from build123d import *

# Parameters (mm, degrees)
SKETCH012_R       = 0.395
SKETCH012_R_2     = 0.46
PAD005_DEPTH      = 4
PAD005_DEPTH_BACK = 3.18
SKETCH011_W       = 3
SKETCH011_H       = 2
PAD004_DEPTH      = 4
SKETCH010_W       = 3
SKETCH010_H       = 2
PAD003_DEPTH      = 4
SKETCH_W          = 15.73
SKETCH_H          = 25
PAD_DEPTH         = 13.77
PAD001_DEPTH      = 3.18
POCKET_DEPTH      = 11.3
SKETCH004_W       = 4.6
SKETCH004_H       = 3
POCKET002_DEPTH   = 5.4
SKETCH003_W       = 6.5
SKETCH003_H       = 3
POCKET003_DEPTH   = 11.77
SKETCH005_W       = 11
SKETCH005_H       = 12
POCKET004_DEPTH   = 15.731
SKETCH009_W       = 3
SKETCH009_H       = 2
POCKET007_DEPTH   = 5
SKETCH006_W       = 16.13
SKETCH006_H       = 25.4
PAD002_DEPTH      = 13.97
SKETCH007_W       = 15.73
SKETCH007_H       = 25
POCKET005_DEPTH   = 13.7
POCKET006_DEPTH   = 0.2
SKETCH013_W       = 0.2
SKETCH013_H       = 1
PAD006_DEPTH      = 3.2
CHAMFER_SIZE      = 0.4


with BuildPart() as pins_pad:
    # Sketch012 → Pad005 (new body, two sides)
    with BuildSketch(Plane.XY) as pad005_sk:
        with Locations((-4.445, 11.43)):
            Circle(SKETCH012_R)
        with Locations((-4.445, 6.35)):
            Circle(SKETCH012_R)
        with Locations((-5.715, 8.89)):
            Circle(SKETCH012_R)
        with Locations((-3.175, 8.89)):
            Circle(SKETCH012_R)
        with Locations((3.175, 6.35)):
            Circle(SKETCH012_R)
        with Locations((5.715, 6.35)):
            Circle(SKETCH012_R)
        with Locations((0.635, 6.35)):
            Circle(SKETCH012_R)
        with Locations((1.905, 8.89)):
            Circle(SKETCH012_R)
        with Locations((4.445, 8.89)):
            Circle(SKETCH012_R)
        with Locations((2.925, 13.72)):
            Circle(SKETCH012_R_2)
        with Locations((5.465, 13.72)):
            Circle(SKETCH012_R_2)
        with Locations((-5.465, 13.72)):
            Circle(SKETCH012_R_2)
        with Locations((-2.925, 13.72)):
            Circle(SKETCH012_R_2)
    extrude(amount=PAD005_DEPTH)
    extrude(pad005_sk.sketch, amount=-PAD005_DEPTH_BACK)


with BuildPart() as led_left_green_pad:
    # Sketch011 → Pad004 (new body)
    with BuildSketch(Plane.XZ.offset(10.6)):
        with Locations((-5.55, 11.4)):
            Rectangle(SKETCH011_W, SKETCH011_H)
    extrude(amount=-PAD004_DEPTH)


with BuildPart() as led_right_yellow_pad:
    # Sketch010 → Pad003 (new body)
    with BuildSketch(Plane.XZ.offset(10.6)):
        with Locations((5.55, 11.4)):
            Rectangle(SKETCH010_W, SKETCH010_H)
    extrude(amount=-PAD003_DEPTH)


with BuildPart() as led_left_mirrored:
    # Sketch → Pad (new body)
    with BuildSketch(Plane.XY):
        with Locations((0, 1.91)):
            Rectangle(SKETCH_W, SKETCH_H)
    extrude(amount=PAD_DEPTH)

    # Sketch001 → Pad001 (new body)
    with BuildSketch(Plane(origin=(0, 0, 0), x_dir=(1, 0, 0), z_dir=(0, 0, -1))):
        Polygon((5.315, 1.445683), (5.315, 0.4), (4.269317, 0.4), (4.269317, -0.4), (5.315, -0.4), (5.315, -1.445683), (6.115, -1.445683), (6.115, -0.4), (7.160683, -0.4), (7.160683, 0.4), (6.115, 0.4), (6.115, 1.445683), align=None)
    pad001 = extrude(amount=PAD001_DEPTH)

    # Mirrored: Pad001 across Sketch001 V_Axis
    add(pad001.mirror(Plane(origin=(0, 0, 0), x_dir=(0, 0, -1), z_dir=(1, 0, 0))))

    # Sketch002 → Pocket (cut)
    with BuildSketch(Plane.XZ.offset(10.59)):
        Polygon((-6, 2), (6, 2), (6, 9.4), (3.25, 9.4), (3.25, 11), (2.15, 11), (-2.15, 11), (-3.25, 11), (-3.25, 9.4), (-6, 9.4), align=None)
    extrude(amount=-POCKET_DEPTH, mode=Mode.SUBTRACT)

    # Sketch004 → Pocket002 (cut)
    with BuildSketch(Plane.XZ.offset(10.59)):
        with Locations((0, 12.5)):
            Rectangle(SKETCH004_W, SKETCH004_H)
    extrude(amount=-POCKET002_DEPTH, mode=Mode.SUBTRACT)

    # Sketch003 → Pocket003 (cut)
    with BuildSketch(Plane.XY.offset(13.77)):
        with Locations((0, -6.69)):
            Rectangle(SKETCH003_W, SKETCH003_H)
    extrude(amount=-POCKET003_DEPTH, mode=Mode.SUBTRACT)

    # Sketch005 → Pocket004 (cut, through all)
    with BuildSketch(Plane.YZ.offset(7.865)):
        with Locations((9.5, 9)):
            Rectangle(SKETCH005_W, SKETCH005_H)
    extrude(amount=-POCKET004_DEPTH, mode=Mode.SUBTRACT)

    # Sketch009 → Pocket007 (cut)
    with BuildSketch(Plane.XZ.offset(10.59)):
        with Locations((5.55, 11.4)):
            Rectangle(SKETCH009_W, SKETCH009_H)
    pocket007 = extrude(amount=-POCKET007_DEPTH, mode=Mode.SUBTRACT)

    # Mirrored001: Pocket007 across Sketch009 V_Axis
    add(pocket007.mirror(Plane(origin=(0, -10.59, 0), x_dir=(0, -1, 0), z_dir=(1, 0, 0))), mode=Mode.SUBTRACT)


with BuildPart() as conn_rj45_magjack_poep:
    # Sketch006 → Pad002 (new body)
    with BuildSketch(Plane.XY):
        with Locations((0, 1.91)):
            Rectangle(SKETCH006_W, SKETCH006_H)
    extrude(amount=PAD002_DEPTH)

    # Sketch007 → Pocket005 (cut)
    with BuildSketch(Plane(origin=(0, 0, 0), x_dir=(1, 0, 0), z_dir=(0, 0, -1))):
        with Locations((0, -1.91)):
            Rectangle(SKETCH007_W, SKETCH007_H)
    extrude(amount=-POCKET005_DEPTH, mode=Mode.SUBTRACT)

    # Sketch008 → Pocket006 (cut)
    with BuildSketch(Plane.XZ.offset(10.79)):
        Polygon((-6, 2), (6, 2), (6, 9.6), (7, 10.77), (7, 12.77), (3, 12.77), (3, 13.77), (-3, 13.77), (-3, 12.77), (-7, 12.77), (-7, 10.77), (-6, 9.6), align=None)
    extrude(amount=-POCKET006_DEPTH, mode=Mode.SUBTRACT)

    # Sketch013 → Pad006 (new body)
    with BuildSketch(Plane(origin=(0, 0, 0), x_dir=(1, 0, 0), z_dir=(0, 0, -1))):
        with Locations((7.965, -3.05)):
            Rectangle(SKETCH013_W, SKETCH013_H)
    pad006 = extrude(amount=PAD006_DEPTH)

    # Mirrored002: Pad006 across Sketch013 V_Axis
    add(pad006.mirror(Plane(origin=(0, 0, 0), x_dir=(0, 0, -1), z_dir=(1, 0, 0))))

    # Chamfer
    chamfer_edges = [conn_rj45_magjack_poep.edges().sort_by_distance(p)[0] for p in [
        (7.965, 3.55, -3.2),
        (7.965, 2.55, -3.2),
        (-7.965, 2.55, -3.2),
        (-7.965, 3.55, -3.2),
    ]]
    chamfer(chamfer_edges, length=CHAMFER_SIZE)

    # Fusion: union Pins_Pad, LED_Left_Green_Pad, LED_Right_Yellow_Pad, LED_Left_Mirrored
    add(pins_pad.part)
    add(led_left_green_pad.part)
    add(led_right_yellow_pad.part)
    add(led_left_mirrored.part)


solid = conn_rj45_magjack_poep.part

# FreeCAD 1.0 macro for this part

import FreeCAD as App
import Part
import Sketcher
Q = App.Units.Quantity


def edges_at(feature, points):
    """Names of the edges that pass closest to the given points."""
    edges = feature.Shape.Edges
    near = lambda p: min(range(len(edges)), key=lambda i: edges[i].distToShape(Part.Vertex(*p))[0])
    return sorted({f"Edge{near(p) + 1}" for p in points})


def add_polygon(sketch, points):
    """Adds a closed chain of lines whose ends are joined by coincident constraints."""
    first, n = sketch.GeometryCount, len(points)
    for a, b in zip(points, points[1:] + points[:1]):
        sketch.addGeometry(Part.LineSegment(App.Vector(*a, 0), App.Vector(*b, 0)), False)
    for i in range(n):
        sketch.addConstraint(Sketcher.Constraint("Coincident", first + i, 2, first + (i + 1) % n, 1))

doc = App.newDocument("Part")
body = doc.addObject("PartDesign::Body", "Body")
body.AllowCompound = True

# Sketch on XY plane
sketch1 = body.newObject("Sketcher::SketchObject", "Sketch")
sketch1.AttachmentSupport = (doc.getObject("XY_Plane"), [""])
sketch1.MapMode = "FlatFace"
sketch1.addGeometry([
    Part.Circle(App.Vector(-4.45, 11.43, 0), App.Vector(0, 0, 1), 0.4),  # 0
    Part.Circle(App.Vector(-4.45, 6.35, 0), App.Vector(0, 0, 1), 0.4),  # 1
    Part.Circle(App.Vector(-5.71, 8.89, 0), App.Vector(0, 0, 1), 0.4),  # 2
    Part.Circle(App.Vector(-3.17, 8.89, 0), App.Vector(0, 0, 1), 0.4),  # 3
    Part.Circle(App.Vector(3.17, 6.35, 0), App.Vector(0, 0, 1), 0.4),  # 4
    Part.Circle(App.Vector(5.71, 6.35, 0), App.Vector(0, 0, 1), 0.4),  # 5
    Part.Circle(App.Vector(0.64, 6.35, 0), App.Vector(0, 0, 1), 0.4),  # 6
    Part.Circle(App.Vector(1.91, 8.89, 0), App.Vector(0, 0, 1), 0.4),  # 7
    Part.Circle(App.Vector(4.45, 8.89, 0), App.Vector(0, 0, 1), 0.4),  # 8
    Part.Circle(App.Vector(2.92, 13.72, 0), App.Vector(0, 0, 1), 0.46),  # 9
    Part.Circle(App.Vector(5.46, 13.72, 0), App.Vector(0, 0, 1), 0.46),  # 10
    Part.Circle(App.Vector(-5.46, 13.72, 0), App.Vector(0, 0, 1), 0.46),  # 11
    Part.Circle(App.Vector(-2.92, 13.72, 0), App.Vector(0, 0, 1), 0.46),  # 12
], False)
sketch1.addConstraint([
    Sketcher.Constraint("Equal", 0, 1),
    Sketcher.Constraint("Equal", 1, 2),
    Sketcher.Constraint("Equal", 2, 3),
    Sketcher.Constraint("Equal", 3, 4),
    Sketcher.Constraint("Equal", 4, 5),
    Sketcher.Constraint("Equal", 5, 6),
    Sketcher.Constraint("Equal", 6, 7),
    Sketcher.Constraint("Equal", 7, 8),
    Sketcher.Constraint("Equal", 9, 10),
    Sketcher.Constraint("Equal", 10, 11),
    Sketcher.Constraint("Equal", 11, 12),
    Sketcher.Constraint("Symmetric", 10, 3, 11, 3, -2),
    Sketcher.Constraint("Symmetric", 9, 3, 12, 3, -2),
    Sketcher.Constraint("Horizontal", 2, 3, 3, 3),
    Sketcher.Constraint("Horizontal", 1, 3, 4, 3),
    Sketcher.Constraint("Horizontal", 4, 3, 5, 3),
    Sketcher.Constraint("Horizontal", 5, 3, 6, 3),
    Sketcher.Constraint("Horizontal", 3, 3, 7, 3),
    Sketcher.Constraint("Horizontal", 7, 3, 8, 3),
    Sketcher.Constraint("Horizontal", 9, 3, 10, 3),
    Sketcher.Constraint("Vertical", 0, 3, 1, 3),
    Sketcher.Constraint("Diameter", 0, Q("0.79 mm")),
    Sketcher.Constraint("Diameter", 9, Q("0.92 mm")),
    Sketcher.Constraint("DistanceY", -1, 1, 0, 3, Q("11.43 mm")),
    Sketcher.Constraint("DistanceY", -1, 1, 1, 3, Q("6.35 mm")),
    Sketcher.Constraint("DistanceY", -1, 1, 2, 3, Q("8.89 mm")),
    Sketcher.Constraint("DistanceY", -1, 1, 9, 3, Q("13.72 mm")),
    Sketcher.Constraint("DistanceX", 2, 3, 0, 3, Q("1.27 mm")),
    Sketcher.Constraint("DistanceX", 2, 3, 3, 3, Q("2.54 mm")),
    Sketcher.Constraint("DistanceX", 3, 3, 4, 3, Q("6.35 mm")),
    Sketcher.Constraint("DistanceX", 4, 3, 5, 3, Q("2.54 mm")),
    Sketcher.Constraint("DistanceX", 6, 3, 4, 3, Q("2.54 mm")),
    Sketcher.Constraint("DistanceX", 7, 3, 4, 3, Q("1.27 mm")),
    Sketcher.Constraint("DistanceX", 7, 3, 8, 3, Q("2.54 mm")),
    Sketcher.Constraint("DistanceX", 7, 3, 9, 3, Q("1.02 mm")),
    Sketcher.Constraint("DistanceX", 9, 3, 10, 3, Q("2.54 mm")),
    Sketcher.Constraint("DistanceX", 11, 3, 0, 3, Q("1.02 mm")),
])
pad1 = body.newObject("PartDesign::Pad", "Pad")
pad1.Profile = sketch1
pad1.Type = "TwoLengths"
pad1.Length = 4
pad1.Length2 = 3.18
body2 = doc.addObject("PartDesign::Body", "Body001")

# Sketch on XZ plane
sketch2 = body2.newObject("Sketcher::SketchObject", "Sketch001")
sketch2.AttachmentSupport = (doc.getObject("XZ_Plane001"), [""])
sketch2.MapMode = "FlatFace"
sketch2.AttachmentOffset = App.Placement(App.Vector(0, 0, 10.6), App.Rotation())
add_polygon(sketch2, [(-7, 12.4), (-7, 10.4), (-4, 10.4), (-4, 12.4)])  # lines 0-3
sketch2.addConstraint([
    Sketcher.Constraint("Vertical", 0),
    Sketcher.Constraint("Horizontal", 1),
    Sketcher.Constraint("Vertical", 2),
    Sketcher.Constraint("Horizontal", 3),
    Sketcher.Constraint("DistanceX", 1, 1, 1, 2, Q("3 mm")),
    Sketcher.Constraint("DistanceY", 0, 2, 0, 1, Q("2 mm")),
    Sketcher.Constraint("DistanceY", -1, 1, 0, 2, Q("10.4 mm")),
    Sketcher.Constraint("DistanceX", 0, 2, -1, 1, Q("7.05 mm")),
])
pad2 = body2.newObject("PartDesign::Pad", "Pad001")
pad2.Profile = sketch2
pad2.Length = 4
pad2.Reversed = True
body3 = doc.addObject("PartDesign::Body", "Body002")

# Sketch on XZ plane
sketch3 = body3.newObject("Sketcher::SketchObject", "Sketch002")
sketch3.AttachmentSupport = (doc.getObject("XZ_Plane002"), [""])
sketch3.MapMode = "FlatFace"
sketch3.AttachmentOffset = App.Placement(App.Vector(0, 0, 10.6), App.Rotation())
add_polygon(sketch3, [(4, 12.4), (4, 10.4), (7, 10.4), (7, 12.4)])  # lines 0-3
sketch3.addConstraint([
    Sketcher.Constraint("Vertical", 0),
    Sketcher.Constraint("Horizontal", 1),
    Sketcher.Constraint("Vertical", 2),
    Sketcher.Constraint("Horizontal", 3),
    Sketcher.Constraint("DistanceX", 1, 1, 1, 2, Q("3 mm")),
    Sketcher.Constraint("DistanceY", 0, 2, 0, 1, Q("2 mm")),
    Sketcher.Constraint("DistanceY", -1, 1, 0, 2, Q("10.4 mm")),
    Sketcher.Constraint("DistanceX", -1, 1, 0, 2, Q("4.05 mm")),
])
pad3 = body3.newObject("PartDesign::Pad", "Pad002")
pad3.Profile = sketch3
pad3.Length = 4
pad3.Reversed = True
body4 = doc.addObject("PartDesign::Body", "Body003")

# Sketch on XY plane
sketch4 = body4.newObject("Sketcher::SketchObject", "Sketch003")
sketch4.AttachmentSupport = (doc.getObject("XY_Plane003"), [""])
sketch4.MapMode = "FlatFace"
add_polygon(sketch4, [(-8, 14), (-8, -11), (8, -11), (8, 14)])  # lines 0-3
sketch4.addConstraint([
    Sketcher.Constraint("Vertical", 0),
    Sketcher.Constraint("Horizontal", 1),
    Sketcher.Constraint("Vertical", 2),
    Sketcher.Constraint("Horizontal", 3),
    Sketcher.Constraint("DistanceY", 0, 2, 0, 1, Q("25 mm")),
    Sketcher.Constraint("DistanceX", 1, 1, 1, 2, Q("15.73 mm")),
    Sketcher.Constraint("DistanceY", 0, 2, -1, 1, Q("10.59 mm")),
    Sketcher.Constraint("DistanceX", 0, 2, -1, 1, Q("7.865 mm")),
])
pad4 = body4.newObject("PartDesign::Pad", "Pad003")
pad4.Profile = sketch4
pad4.Length = 13.77

# Sketch on XY plane
sketch5 = body4.newObject("Sketcher::SketchObject", "Sketch004")
sketch5.AttachmentSupport = (doc.getObject("XY_Plane003"), [""])
sketch5.MapMode = "FlatFace"
add_polygon(sketch5, [(5.3, -1.4), (5.3, -0.4), (4.3, -0.4), (4.3, 0.4), (5.3, 0.4), (5.3, 1.4), (6.1, 1.4), (6.1, 0.4), (7.2, 0.4), (7.2, -0.4), (6.1, -0.4), (6.1, -1.4)])  # lines 0-11
sketch5.addConstraint([
    Sketcher.Constraint("Vertical", 0),
    Sketcher.Constraint("Horizontal", 1),
    Sketcher.Constraint("Vertical", 2),
    Sketcher.Constraint("Horizontal", 3),
    Sketcher.Constraint("Vertical", 4),
    Sketcher.Constraint("Horizontal", 5),
    Sketcher.Constraint("Vertical", 6),
    Sketcher.Constraint("Horizontal", 7),
    Sketcher.Constraint("Vertical", 8),
    Sketcher.Constraint("Horizontal", 9),
    Sketcher.Constraint("Vertical", 10),
    Sketcher.Constraint("Horizontal", 11),
    Sketcher.Constraint("Symmetric", 0, 2, 3, 2, -1),
    Sketcher.Constraint("Symmetric", 6, 2, 9, 2, -1),
    Sketcher.Constraint("Horizontal", 3, 2, 6, 2),
    Sketcher.Constraint("Equal", 3, 7),
    Sketcher.Constraint("Equal", 9, 0),
    Sketcher.Constraint("Equal", 11, 2),
    Sketcher.Constraint("Equal", 0, 4),
    Sketcher.Constraint("DistanceX", 5, 1, 5, 2, Q("0.8 mm")),
    Sketcher.Constraint("DistanceX", -1, 1, 0, 2, Q("5.315 mm")),
    Sketcher.Constraint("DistanceX", 1, 2, 1, 1, Q("1.045683 mm")),
])
pad5 = body4.newObject("PartDesign::Pad", "Pad004")
pad5.Profile = sketch5
pad5.Length = 3.18
pad5.Reversed = True
doc.recompute()

mirrored = body4.newObject("PartDesign::Mirrored", "Mirrored")
mirrored.Originals = [pad5]
mirrored.MirrorPlane = (doc.getObject("YZ_Plane003"), [""])
body4.Tip = mirrored

# Sketch on XZ plane
sketch6 = body4.newObject("Sketcher::SketchObject", "Sketch005")
sketch6.AttachmentSupport = (doc.getObject("XZ_Plane003"), [""])
sketch6.MapMode = "FlatFace"
sketch6.AttachmentOffset = App.Placement(App.Vector(0, 0, 10.59), App.Rotation())
add_polygon(sketch6, [(-6, 2), (6, 2), (6, 9.4), (3.2, 9.4), (3.2, 11), (-3.2, 11), (-3.2, 9.4), (-6, 9.4)])  # lines 0-7
sketch6.addConstraint([
    Sketcher.Constraint("Horizontal", 0),
    Sketcher.Constraint("Vertical", 1),
    Sketcher.Constraint("Horizontal", 2),
    Sketcher.Constraint("Vertical", 3),
    Sketcher.Constraint("Horizontal", 4),
    Sketcher.Constraint("Vertical", 5),
    Sketcher.Constraint("Horizontal", 6),
    Sketcher.Constraint("Vertical", 7),
    Sketcher.Constraint("Symmetric", 2, 2, 5, 2, -2),
    Sketcher.Constraint("Equal", 2, 6),
    Sketcher.Constraint("DistanceX", 0, 1, 0, 2, Q("12 mm")),
    Sketcher.Constraint("DistanceX", 4, 2, 4, 1, Q("6.5 mm")),
    Sketcher.Constraint("DistanceY", 1, 1, 1, 2, Q("7.4 mm")),
    Sketcher.Constraint("DistanceY", 3, 1, 3, 2, Q("1.6 mm")),
    Sketcher.Constraint("DistanceY", -1, 1, 0, 2, Q("2 mm")),
])
pocket1 = body4.newObject("PartDesign::Pocket", "Pocket")
pocket1.Profile = sketch6
pocket1.Length = 11.3

# Sketch on XZ plane
sketch7 = body4.newObject("Sketcher::SketchObject", "Sketch006")
sketch7.AttachmentSupport = (doc.getObject("XZ_Plane003"), [""])
sketch7.MapMode = "FlatFace"
sketch7.AttachmentOffset = App.Placement(App.Vector(0, 0, 10.59), App.Rotation())
add_polygon(sketch7, [(-2.3, 14), (-2.3, 11), (2.3, 11), (2.3, 14)])  # lines 0-3
sketch7.addConstraint([
    Sketcher.Constraint("Vertical", 0),
    Sketcher.Constraint("Horizontal", 1),
    Sketcher.Constraint("Vertical", 2),
    Sketcher.Constraint("Horizontal", 3),
    Sketcher.Constraint("DistanceY", 0, 2, 0, 1, Q("3 mm")),
    Sketcher.Constraint("DistanceX", 1, 1, 1, 2, Q("4.6 mm")),
    Sketcher.Constraint("DistanceY", -1, 1, 0, 2, Q("11 mm")),
    Sketcher.Constraint("DistanceX", 0, 2, -1, 1, Q("2.3 mm")),
])
pocket2 = body4.newObject("PartDesign::Pocket", "Pocket001")
pocket2.Profile = sketch7
pocket2.Length = 5.4

# Sketch on XY plane
sketch8 = body4.newObject("Sketcher::SketchObject", "Sketch007")
sketch8.AttachmentSupport = (doc.getObject("XY_Plane003"), [""])
sketch8.MapMode = "FlatFace"
sketch8.AttachmentOffset = App.Placement(App.Vector(0, 0, 13.77), App.Rotation())
add_polygon(sketch8, [(-3.2, -5.2), (-3.2, -8.2), (3.2, -8.2), (3.2, -5.2)])  # lines 0-3
sketch8.addConstraint([
    Sketcher.Constraint("Vertical", 0),
    Sketcher.Constraint("Horizontal", 1),
    Sketcher.Constraint("Vertical", 2),
    Sketcher.Constraint("Horizontal", 3),
    Sketcher.Constraint("DistanceY", 0, 2, 0, 1, Q("3 mm")),
    Sketcher.Constraint("DistanceX", 1, 1, 1, 2, Q("6.5 mm")),
    Sketcher.Constraint("DistanceX", 0, 2, -1, 1, Q("3.25 mm")),
    Sketcher.Constraint("DistanceY", 0, 2, -1, 1, Q("8.19 mm")),
])
pocket3 = body4.newObject("PartDesign::Pocket", "Pocket002")
pocket3.Profile = sketch8
pocket3.Length = 11.77

# Sketch on YZ plane
sketch9 = body4.newObject("Sketcher::SketchObject", "Sketch008")
sketch9.AttachmentSupport = (doc.getObject("YZ_Plane003"), [""])
sketch9.MapMode = "FlatFace"
sketch9.AttachmentOffset = App.Placement(App.Vector(0, 0, 7.865), App.Rotation())
add_polygon(sketch9, [(4, 15), (4, 3), (15, 3), (15, 15)])  # lines 0-3
sketch9.addConstraint([
    Sketcher.Constraint("Vertical", 0),
    Sketcher.Constraint("Horizontal", 1),
    Sketcher.Constraint("Vertical", 2),
    Sketcher.Constraint("Horizontal", 3),
    Sketcher.Constraint("DistanceX", 1, 1, 1, 2, Q("11 mm")),
    Sketcher.Constraint("DistanceY", 0, 2, 0, 1, Q("12 mm")),
    Sketcher.Constraint("DistanceX", -1, 1, 0, 2, Q("4 mm")),
    Sketcher.Constraint("DistanceY", -1, 1, 0, 2, Q("3 mm")),
])
pocket4 = body4.newObject("PartDesign::Pocket", "Pocket003")
pocket4.Profile = sketch9
pocket4.Type = "ThroughAll"

# Sketch on XZ plane
sketch10 = body4.newObject("Sketcher::SketchObject", "Sketch009")
sketch10.AttachmentSupport = (doc.getObject("XZ_Plane003"), [""])
sketch10.MapMode = "FlatFace"
sketch10.AttachmentOffset = App.Placement(App.Vector(0, 0, 10.59), App.Rotation())
add_polygon(sketch10, [(4, 12.4), (4, 10.4), (7, 10.4), (7, 12.4)])  # lines 0-3
sketch10.addConstraint([
    Sketcher.Constraint("Vertical", 0),
    Sketcher.Constraint("Horizontal", 1),
    Sketcher.Constraint("Vertical", 2),
    Sketcher.Constraint("Horizontal", 3),
    Sketcher.Constraint("DistanceX", 1, 1, 1, 2, Q("3 mm")),
    Sketcher.Constraint("DistanceY", 0, 2, 0, 1, Q("2 mm")),
    Sketcher.Constraint("DistanceY", -1, 1, 0, 2, Q("10.4 mm")),
    Sketcher.Constraint("DistanceX", -1, 1, 0, 2, Q("4.05 mm")),
])
pocket5 = body4.newObject("PartDesign::Pocket", "Pocket004")
pocket5.Profile = sketch10
pocket5.Length = 5
doc.recompute()

mirrored2 = body4.newObject("PartDesign::Mirrored", "Mirrored001")
mirrored2.Originals = [pocket5]
mirrored2.MirrorPlane = (doc.getObject("YZ_Plane003"), [""])
body4.Tip = mirrored2
body5 = doc.addObject("PartDesign::Body", "Body004")
body5.AllowCompound = True

# Sketch on XY plane
sketch11 = body5.newObject("Sketcher::SketchObject", "Sketch010")
sketch11.AttachmentSupport = (doc.getObject("XY_Plane004"), [""])
sketch11.MapMode = "FlatFace"
add_polygon(sketch11, [(-8, 15), (-8, -11), (8, -11), (8, 15)])  # lines 0-3
sketch11.addConstraint([
    Sketcher.Constraint("Vertical", 0),
    Sketcher.Constraint("Horizontal", 1),
    Sketcher.Constraint("Vertical", 2),
    Sketcher.Constraint("Horizontal", 3),
    Sketcher.Constraint("DistanceY", 0, 2, 0, 1, Q("25.4 mm")),
    Sketcher.Constraint("DistanceX", 1, 1, 1, 2, Q("16.13 mm")),
    Sketcher.Constraint("DistanceY", 0, 2, -1, 1, Q("10.79 mm")),
    Sketcher.Constraint("DistanceX", 0, 2, -1, 1, Q("8.065 mm")),
])
pad6 = body5.newObject("PartDesign::Pad", "Pad005")
pad6.Profile = sketch11
pad6.Length = 13.97

# Sketch on XY plane
sketch12 = body5.newObject("Sketcher::SketchObject", "Sketch011")
sketch12.AttachmentSupport = (doc.getObject("XY_Plane004"), [""])
sketch12.MapMode = "FlatFace"
add_polygon(sketch12, [(-8, -11), (-8, 14), (8, 14), (8, -11)])  # lines 0-3
sketch12.addConstraint([
    Sketcher.Constraint("Vertical", 0),
    Sketcher.Constraint("Horizontal", 1),
    Sketcher.Constraint("Vertical", 2),
    Sketcher.Constraint("Horizontal", 3),
    Sketcher.Constraint("DistanceY", 0, 1, 0, 2, Q("25 mm")),
    Sketcher.Constraint("DistanceX", 1, 1, 1, 2, Q("15.73 mm")),
    Sketcher.Constraint("DistanceY", -1, 1, 0, 2, Q("14.41 mm")),
    Sketcher.Constraint("DistanceX", 0, 2, -1, 1, Q("7.865 mm")),
])
pocket6 = body5.newObject("PartDesign::Pocket", "Pocket005")
pocket6.Profile = sketch12
pocket6.Length = 13.7
pocket6.Reversed = True

# Sketch on XZ plane
sketch13 = body5.newObject("Sketcher::SketchObject", "Sketch012")
sketch13.AttachmentSupport = (doc.getObject("XZ_Plane004"), [""])
sketch13.MapMode = "FlatFace"
sketch13.AttachmentOffset = App.Placement(App.Vector(0, 0, 10.79), App.Rotation())
add_polygon(sketch13, [(-6, 2), (6, 2), (6, 9.6), (7, 10.8), (7, 12.8), (3, 12.8), (3, 13.8), (-3, 13.8), (-3, 12.8), (-7, 12.8), (-7, 10.8), (-6, 9.6)])  # lines 0-11
sketch13.addConstraint([
    Sketcher.Constraint("Horizontal", 0),
    Sketcher.Constraint("Vertical", 1),
    Sketcher.Constraint("Vertical", 3),
    Sketcher.Constraint("Horizontal", 4),
    Sketcher.Constraint("Vertical", 5),
    Sketcher.Constraint("Horizontal", 6),
    Sketcher.Constraint("Vertical", 7),
    Sketcher.Constraint("Horizontal", 8),
    Sketcher.Constraint("Vertical", 9),
    Sketcher.Constraint("Vertical", 11),
    Sketcher.Constraint("Symmetric", 4, 2, 7, 2, -2),
    Sketcher.Constraint("Symmetric", 2, 2, 9, 2, -2),
    Sketcher.Constraint("Symmetric", 1, 2, 10, 2, -2),
    Sketcher.Constraint("DistanceX", 0, 1, 0, 2, Q("12 mm")),
    Sketcher.Constraint("DistanceX", 4, 2, 4, 1, Q("4 mm")),
    Sketcher.Constraint("DistanceX", 6, 2, 6, 1, Q("6 mm")),
    Sketcher.Constraint("DistanceY", 3, 1, 3, 2, Q("2 mm")),
    Sketcher.Constraint("DistanceY", 5, 1, 5, 2, Q("1 mm")),
    Sketcher.Constraint("DistanceY", 1, 1, 1, 2, Q("7.6 mm")),
    Sketcher.Constraint("DistanceY", -1, 1, 0, 2, Q("2 mm")),
    Sketcher.Constraint("DistanceY", -1, 1, 2, 2, Q("10.77 mm")),
])
pocket7 = body5.newObject("PartDesign::Pocket", "Pocket006")
pocket7.Profile = sketch13
pocket7.Length = 0.2

# Sketch on XY plane
sketch14 = body5.newObject("Sketcher::SketchObject", "Sketch013")
sketch14.AttachmentSupport = (doc.getObject("XY_Plane004"), [""])
sketch14.MapMode = "FlatFace"
add_polygon(sketch14, [(7.87, 2.55), (7.87, 3.55), (8.06, 3.55), (8.06, 2.55)])  # lines 0-3
sketch14.addConstraint([
    Sketcher.Constraint("Vertical", 0),
    Sketcher.Constraint("Horizontal", 1),
    Sketcher.Constraint("Vertical", 2),
    Sketcher.Constraint("Horizontal", 3),
    Sketcher.Constraint("DistanceY", 0, 1, 0, 2, Q("1 mm")),
    Sketcher.Constraint("DistanceX", 1, 1, 1, 2, Q("0.2 mm")),
    Sketcher.Constraint("DistanceY", -1, 1, 0, 2, Q("3.55 mm")),
    Sketcher.Constraint("DistanceX", -1, 1, 0, 2, Q("7.865 mm")),
])
pad7 = body5.newObject("PartDesign::Pad", "Pad006")
pad7.Profile = sketch14
pad7.Length = 3.2
pad7.Reversed = True
doc.recompute()

mirrored3 = body5.newObject("PartDesign::Mirrored", "Mirrored002")
mirrored3.Originals = [pad7]
mirrored3.MirrorPlane = (doc.getObject("YZ_Plane004"), [""])
body5.Tip = mirrored3
doc.recompute()

chamfer = body5.newObject("PartDesign::Chamfer", "Chamfer")
chamfer.Base = (mirrored3, edges_at(mirrored3, [
    (7.965, 3.55, -3.2),
    (7.965, 2.55, -3.2),
    (-7.965, 2.55, -3.2),
    (-7.965, 3.55, -3.2),
]))
chamfer.Size = 0.4
doc.recompute()

boolean = body5.newObject("PartDesign::Boolean", "Boolean")
boolean.Type = "Fuse"
boolean.addObjects([body])
doc.recompute()

boolean2 = body5.newObject("PartDesign::Boolean", "Boolean001")
boolean2.Type = "Fuse"
boolean2.addObjects([body2])
doc.recompute()

boolean3 = body5.newObject("PartDesign::Boolean", "Boolean002")
boolean3.Type = "Fuse"
boolean3.addObjects([body3])
doc.recompute()

boolean4 = body5.newObject("PartDesign::Boolean", "Boolean003")
boolean4.Type = "Fuse"
boolean4.addObjects([body4])

doc.recompute()
